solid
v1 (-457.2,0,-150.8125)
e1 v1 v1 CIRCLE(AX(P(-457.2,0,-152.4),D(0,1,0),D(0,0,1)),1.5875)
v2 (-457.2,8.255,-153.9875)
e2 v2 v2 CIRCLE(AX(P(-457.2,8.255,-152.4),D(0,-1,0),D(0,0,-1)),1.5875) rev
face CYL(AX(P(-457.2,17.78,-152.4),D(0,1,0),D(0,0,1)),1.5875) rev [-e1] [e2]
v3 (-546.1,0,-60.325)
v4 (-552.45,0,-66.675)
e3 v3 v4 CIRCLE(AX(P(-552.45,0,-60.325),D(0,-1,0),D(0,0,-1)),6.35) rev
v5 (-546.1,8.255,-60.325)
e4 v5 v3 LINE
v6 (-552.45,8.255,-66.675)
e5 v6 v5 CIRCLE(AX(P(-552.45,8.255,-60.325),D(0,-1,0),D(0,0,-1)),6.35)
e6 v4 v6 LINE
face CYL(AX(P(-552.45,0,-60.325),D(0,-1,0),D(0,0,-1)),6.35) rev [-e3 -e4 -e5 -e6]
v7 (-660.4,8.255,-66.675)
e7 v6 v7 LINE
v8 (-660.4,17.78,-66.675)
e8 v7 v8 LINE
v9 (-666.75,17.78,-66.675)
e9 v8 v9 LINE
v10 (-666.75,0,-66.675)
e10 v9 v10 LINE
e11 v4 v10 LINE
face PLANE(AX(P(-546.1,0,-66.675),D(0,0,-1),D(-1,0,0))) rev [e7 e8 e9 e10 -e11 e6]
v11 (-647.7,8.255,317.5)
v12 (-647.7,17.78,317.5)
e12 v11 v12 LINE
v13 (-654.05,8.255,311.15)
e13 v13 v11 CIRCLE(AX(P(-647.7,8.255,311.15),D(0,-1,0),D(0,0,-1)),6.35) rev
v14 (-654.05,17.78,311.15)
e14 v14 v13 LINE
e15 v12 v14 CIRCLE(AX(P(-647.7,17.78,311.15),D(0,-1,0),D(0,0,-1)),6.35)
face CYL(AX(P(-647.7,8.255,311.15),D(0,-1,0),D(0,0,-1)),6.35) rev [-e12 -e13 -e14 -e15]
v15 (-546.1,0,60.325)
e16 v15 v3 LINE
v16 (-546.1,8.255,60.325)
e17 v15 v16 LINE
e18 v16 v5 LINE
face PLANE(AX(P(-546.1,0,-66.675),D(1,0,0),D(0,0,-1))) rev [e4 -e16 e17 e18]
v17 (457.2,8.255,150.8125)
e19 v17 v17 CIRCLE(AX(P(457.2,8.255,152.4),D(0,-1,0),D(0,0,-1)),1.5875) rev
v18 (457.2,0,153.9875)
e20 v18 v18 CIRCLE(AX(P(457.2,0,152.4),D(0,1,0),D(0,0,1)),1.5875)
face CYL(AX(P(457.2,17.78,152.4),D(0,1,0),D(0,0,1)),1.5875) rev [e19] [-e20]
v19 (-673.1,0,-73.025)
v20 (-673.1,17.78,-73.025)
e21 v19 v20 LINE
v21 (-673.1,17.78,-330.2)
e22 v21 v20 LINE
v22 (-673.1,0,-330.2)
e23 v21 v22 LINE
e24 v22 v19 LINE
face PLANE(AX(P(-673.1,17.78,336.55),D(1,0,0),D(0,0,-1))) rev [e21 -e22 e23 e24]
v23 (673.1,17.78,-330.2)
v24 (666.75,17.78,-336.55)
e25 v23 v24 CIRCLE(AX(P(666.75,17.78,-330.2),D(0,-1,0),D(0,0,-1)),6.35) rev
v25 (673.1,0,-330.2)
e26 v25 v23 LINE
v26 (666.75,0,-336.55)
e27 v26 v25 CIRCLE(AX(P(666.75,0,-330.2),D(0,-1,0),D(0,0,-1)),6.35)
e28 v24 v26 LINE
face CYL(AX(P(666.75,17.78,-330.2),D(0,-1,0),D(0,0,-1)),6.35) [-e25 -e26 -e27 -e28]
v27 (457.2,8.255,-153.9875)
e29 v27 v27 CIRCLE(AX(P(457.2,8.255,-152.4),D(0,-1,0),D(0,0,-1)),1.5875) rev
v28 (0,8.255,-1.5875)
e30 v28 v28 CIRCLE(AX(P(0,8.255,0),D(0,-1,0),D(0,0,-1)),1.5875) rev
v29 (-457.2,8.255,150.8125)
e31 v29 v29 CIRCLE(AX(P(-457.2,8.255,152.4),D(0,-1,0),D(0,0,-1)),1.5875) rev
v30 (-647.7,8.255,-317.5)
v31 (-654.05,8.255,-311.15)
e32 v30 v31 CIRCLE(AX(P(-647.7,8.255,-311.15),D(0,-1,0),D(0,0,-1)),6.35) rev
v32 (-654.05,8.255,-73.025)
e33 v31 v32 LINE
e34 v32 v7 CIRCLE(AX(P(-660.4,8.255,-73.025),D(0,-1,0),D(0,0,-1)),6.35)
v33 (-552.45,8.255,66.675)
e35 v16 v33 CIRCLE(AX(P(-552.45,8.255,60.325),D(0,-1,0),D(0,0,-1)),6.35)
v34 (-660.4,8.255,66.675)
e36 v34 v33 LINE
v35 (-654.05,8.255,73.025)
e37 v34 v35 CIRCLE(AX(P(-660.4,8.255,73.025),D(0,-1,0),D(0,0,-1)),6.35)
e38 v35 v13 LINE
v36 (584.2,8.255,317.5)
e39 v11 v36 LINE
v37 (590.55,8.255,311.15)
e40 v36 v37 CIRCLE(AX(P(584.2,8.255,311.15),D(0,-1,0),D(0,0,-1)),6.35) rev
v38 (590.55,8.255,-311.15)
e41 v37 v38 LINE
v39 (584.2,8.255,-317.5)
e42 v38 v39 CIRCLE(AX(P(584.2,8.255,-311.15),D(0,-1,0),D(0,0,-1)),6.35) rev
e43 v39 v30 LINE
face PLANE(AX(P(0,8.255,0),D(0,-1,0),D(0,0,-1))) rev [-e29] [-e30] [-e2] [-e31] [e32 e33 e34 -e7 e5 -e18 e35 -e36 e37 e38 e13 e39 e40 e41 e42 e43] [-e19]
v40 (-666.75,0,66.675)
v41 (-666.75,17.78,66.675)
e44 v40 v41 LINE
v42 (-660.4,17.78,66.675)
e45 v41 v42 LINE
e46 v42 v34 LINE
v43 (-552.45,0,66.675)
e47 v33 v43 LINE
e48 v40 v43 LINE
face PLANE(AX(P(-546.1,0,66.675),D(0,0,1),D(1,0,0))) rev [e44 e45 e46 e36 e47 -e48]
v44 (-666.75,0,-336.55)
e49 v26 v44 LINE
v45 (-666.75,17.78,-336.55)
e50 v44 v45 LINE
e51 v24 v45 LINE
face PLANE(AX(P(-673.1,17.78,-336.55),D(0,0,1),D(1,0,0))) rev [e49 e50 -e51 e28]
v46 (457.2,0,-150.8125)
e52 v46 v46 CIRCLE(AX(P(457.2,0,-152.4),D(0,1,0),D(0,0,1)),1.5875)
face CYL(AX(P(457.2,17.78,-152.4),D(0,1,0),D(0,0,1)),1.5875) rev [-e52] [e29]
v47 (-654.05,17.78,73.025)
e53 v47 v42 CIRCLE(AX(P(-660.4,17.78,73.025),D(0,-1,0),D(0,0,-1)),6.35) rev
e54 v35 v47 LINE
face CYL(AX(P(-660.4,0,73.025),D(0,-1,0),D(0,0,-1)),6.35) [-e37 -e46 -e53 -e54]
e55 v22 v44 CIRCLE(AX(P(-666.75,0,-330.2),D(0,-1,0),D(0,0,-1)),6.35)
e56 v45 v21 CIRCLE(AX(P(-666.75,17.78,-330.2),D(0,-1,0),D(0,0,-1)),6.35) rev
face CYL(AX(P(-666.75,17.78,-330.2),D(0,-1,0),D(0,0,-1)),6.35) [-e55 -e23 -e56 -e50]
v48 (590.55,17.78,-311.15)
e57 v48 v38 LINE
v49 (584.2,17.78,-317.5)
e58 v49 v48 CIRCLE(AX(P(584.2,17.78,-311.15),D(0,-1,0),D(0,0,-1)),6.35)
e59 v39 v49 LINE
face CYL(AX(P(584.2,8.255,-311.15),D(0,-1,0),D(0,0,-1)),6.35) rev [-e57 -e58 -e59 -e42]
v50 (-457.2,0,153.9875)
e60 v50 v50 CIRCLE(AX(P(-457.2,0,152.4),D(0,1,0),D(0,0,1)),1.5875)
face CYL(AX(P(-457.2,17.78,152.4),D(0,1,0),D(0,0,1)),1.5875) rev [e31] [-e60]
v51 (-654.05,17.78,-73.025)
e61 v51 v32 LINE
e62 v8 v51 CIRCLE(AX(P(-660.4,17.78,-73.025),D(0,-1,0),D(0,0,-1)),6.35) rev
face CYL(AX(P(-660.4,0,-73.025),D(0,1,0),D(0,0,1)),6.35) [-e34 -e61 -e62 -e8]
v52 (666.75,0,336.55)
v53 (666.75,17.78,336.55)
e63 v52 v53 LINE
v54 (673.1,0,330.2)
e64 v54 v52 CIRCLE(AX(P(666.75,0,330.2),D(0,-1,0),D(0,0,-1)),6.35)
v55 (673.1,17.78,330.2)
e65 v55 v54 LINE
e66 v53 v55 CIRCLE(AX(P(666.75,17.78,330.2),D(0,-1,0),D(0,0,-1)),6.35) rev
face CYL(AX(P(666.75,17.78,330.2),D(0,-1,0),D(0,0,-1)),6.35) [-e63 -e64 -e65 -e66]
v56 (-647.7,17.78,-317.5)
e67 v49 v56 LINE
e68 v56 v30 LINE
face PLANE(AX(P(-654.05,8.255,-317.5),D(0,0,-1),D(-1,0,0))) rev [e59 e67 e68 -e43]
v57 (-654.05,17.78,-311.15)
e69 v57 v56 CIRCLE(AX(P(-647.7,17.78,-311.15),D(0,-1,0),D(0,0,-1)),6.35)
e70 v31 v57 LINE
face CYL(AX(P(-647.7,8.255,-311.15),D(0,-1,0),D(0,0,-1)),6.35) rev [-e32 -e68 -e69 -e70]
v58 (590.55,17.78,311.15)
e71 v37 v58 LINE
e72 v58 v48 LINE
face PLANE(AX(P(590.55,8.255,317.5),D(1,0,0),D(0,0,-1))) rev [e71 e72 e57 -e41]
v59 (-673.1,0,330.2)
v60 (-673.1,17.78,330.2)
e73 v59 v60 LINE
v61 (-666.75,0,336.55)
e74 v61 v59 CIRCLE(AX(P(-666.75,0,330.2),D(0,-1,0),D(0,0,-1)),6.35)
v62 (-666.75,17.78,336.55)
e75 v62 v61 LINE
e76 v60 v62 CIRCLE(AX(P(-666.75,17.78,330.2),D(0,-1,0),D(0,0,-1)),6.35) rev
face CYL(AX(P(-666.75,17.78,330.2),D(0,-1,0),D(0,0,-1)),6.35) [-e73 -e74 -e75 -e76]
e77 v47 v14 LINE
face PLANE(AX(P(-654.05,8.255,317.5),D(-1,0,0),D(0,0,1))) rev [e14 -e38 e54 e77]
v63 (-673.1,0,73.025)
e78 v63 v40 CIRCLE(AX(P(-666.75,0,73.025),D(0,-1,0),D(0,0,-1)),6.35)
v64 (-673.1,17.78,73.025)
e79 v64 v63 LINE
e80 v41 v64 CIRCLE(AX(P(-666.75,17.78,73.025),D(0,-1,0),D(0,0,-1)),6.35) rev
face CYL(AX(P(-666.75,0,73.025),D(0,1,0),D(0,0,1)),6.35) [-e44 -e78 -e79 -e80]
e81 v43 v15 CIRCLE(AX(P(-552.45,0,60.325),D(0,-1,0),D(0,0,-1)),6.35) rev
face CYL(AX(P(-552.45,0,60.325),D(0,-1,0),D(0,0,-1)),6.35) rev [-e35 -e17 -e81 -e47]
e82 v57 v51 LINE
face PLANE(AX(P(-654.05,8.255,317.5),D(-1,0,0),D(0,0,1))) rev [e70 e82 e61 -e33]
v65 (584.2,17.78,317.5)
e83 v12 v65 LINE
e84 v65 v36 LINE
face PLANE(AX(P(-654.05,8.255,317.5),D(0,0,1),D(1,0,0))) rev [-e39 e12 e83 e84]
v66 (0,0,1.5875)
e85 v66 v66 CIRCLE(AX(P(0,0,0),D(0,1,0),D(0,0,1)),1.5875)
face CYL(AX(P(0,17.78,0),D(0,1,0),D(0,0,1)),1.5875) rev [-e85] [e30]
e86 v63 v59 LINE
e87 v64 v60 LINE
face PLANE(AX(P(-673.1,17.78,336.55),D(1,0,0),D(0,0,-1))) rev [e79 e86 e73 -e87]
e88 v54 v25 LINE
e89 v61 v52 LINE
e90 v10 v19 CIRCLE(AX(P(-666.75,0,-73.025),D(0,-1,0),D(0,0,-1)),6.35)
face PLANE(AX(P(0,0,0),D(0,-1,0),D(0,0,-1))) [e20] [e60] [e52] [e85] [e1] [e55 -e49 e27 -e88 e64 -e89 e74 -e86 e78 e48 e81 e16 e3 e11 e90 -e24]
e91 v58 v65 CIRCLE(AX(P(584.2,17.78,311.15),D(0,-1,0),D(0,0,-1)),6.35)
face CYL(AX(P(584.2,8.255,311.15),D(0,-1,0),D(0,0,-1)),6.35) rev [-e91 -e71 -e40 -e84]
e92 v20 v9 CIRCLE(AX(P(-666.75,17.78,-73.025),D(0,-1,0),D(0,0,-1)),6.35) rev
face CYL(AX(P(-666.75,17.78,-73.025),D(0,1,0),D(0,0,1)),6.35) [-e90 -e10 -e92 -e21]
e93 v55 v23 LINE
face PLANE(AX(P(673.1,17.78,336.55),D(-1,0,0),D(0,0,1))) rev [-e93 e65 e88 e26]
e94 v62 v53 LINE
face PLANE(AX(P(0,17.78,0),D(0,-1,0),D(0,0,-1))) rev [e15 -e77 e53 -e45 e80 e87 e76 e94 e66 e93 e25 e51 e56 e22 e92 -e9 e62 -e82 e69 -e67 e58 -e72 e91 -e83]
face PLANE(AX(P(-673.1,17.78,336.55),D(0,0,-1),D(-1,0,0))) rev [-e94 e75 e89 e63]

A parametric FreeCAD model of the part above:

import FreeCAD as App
import Part
import Sketcher
from FreeCAD import Vector
Q = App.Units.Quantity


def edges_at(feature, points):
    """Names of the edges that pass closest to the given points."""
    edges = feature.Shape.Edges
    near = lambda p: min(range(len(edges)), key=lambda i: edges[i].distToShape(Part.Vertex(*p))[0])
    return sorted({f"Edge{near(p) + 1}" for p in points})

doc = App.newDocument("Part")
body = doc.addObject("PartDesign::Body", "Body")

# Sketch on XZ plane
sketch1 = body.newObject("Sketcher::SketchObject", "Sketch")
sketch1.AttachmentSupport = (doc.getObject("XZ_Plane"), [""])
sketch1.MapMode = "FlatFace"
sketch1.addGeometry([
    Part.LineSegment(Vector(-673, -337, 0), Vector(-673, 337, 0)),
    Part.LineSegment(Vector(-673, 337, 0), Vector(673, 337, 0)),
    Part.LineSegment(Vector(673, 337, 0), Vector(673, -337, 0)),
    Part.LineSegment(Vector(673, -337, 0), Vector(-673, -337, 0)),
], False)
sketch1.addConstraint([
    Sketcher.Constraint("Coincident", 0, 2, 1, 1),
    Sketcher.Constraint("Coincident", 1, 2, 2, 1),
    Sketcher.Constraint("Coincident", 2, 2, 3, 1),
    Sketcher.Constraint("Coincident", 3, 2, 0, 1),
    Sketcher.Constraint("Vertical", 0),
    Sketcher.Constraint("Horizontal", 1),
    Sketcher.Constraint("Vertical", 2),
    Sketcher.Constraint("Horizontal", 3),
    Sketcher.Constraint("Symmetric", 0, 2, 2, 2, -1, 1),
    Sketcher.Constraint("DistanceX", 1, 1, 1, 2, Q("53 in")),
    Sketcher.Constraint("DistanceY", 0, 1, 0, 2, Q("26.5 in")),
])
pad1 = body.newObject("PartDesign::Pad", "Pad")
pad1.Profile = sketch1
pad1.Length = Q("0.7 in")
pad1.Reversed = True

# Sketch on XZ plane
sketch2 = body.newObject("Sketcher::SketchObject", "Sketch001")
sketch2.AttachmentSupport = (doc.getObject("XZ_Plane"), [""])
sketch2.MapMode = "FlatFace"
sketch2.AttachmentOffset = App.Placement(Vector(0, 0, -0.7 * 25.4), App.Rotation())
sketch2.addGeometry([
    Part.Circle(Vector(0, 0, 0), Vector(0, 0, 1), 1.6),  # 0
    Part.Circle(Vector(457.2, -152.4, 0), Vector(0, 0, 1), 1.6),  # 1
    Part.Circle(Vector(-457.2, 152.4, 0), Vector(0, 0, 1), 1.6),  # 2
    Part.Circle(Vector(-457.2, -152.4, 0), Vector(0, 0, 1), 1.6),  # 3
    Part.Circle(Vector(457.2, 152.4, 0), Vector(0, 0, 1), 1.6),  # 4
], False)
sketch2.addConstraint([
    Sketcher.Constraint("Coincident", 0, 3, -1, 1),
    Sketcher.Constraint("Equal", 0, 1),
    Sketcher.Constraint("Equal", 1, 2),
    Sketcher.Constraint("Equal", 2, 3),
    Sketcher.Constraint("Equal", 3, 4),
    Sketcher.Constraint("Symmetric", 1, 3, 2, 3, -1, 1),
    Sketcher.Constraint("Symmetric", 3, 3, 4, 3, -1, 1),
    Sketcher.Constraint("Symmetric", 1, 3, 3, 3, -2),
    Sketcher.Constraint("Diameter", 0, Q("0.125 in")),
    Sketcher.Constraint("DistanceX", -1, 1, 1, 3, Q("18 in")),
    Sketcher.Constraint("DistanceY", 1, 3, -1, 1, Q("6 in")),
])
doc.recompute()
hole = body.newObject("PartDesign::Hole", "Hole")
hole.Profile = sketch2
hole.ThreadType = "None"
hole.Diameter = Q("0.125 in")
hole.DepthType = "ThroughAll"
hole.Reversed = True

# Sketch on XZ plane
sketch3 = body.newObject("Sketcher::SketchObject", "Sketch002")
sketch3.AttachmentSupport = (doc.getObject("XZ_Plane"), [""])
sketch3.MapMode = "FlatFace"
sketch3.AttachmentOffset = App.Placement(Vector(0, 0, -0.7 * 25.4), App.Rotation())
sketch3.addGeometry([
    Part.LineSegment(Vector(-673, -67, 0), Vector(-673, 67, 0)),
    Part.LineSegment(Vector(-673, 67, 0), Vector(-546, 67, 0)),
    Part.LineSegment(Vector(-546, 67, 0), Vector(-546, -67, 0)),
    Part.LineSegment(Vector(-546, -67, 0), Vector(-673, -67, 0)),
], False)
sketch3.addConstraint([
    Sketcher.Constraint("Coincident", 0, 2, 1, 1),
    Sketcher.Constraint("Coincident", 1, 2, 2, 1),
    Sketcher.Constraint("Coincident", 2, 2, 3, 1),
    Sketcher.Constraint("Coincident", 3, 2, 0, 1),
    Sketcher.Constraint("Vertical", 0),
    Sketcher.Constraint("Horizontal", 1),
    Sketcher.Constraint("Vertical", 2),
    Sketcher.Constraint("Horizontal", 3),
    Sketcher.Constraint("DistanceX", 1, 1, 1, 2, Q("5 in")),
    Sketcher.Constraint("DistanceY", 0, 1, 0, 2, Q("5.25 in")),
    Sketcher.Constraint("DistanceX", 0, 2, -1, 1, Q("26.5 in")),
    Sketcher.Constraint("DistanceY", -1, 1, 0, 2, Q("2.625 in")),
])
pocket1 = body.newObject("PartDesign::Pocket", "Pocket")
pocket1.Profile = sketch3
pocket1.Type = "ThroughAll"
pocket1.Reversed = True

# Sketch on XZ plane
sketch4 = body.newObject("Sketcher::SketchObject", "Sketch003")
sketch4.AttachmentSupport = (doc.getObject("XZ_Plane"), [""])
sketch4.MapMode = "FlatFace"
sketch4.AttachmentOffset = App.Placement(Vector(0, 0, -0.7 * 25.4), App.Rotation())
sketch4.addGeometry([
    Part.LineSegment(Vector(-654, -318, 0), Vector(-654, 318, 0)),
    Part.LineSegment(Vector(-654, 318, 0), Vector(591, 318, 0)),
    Part.LineSegment(Vector(591, 318, 0), Vector(591, -318, 0)),
    Part.LineSegment(Vector(591, -318, 0), Vector(-654, -318, 0)),
], False)
sketch4.addConstraint([
    Sketcher.Constraint("Coincident", 0, 2, 1, 1),
    Sketcher.Constraint("Coincident", 1, 2, 2, 1),
    Sketcher.Constraint("Coincident", 2, 2, 3, 1),
    Sketcher.Constraint("Coincident", 3, 2, 0, 1),
    Sketcher.Constraint("Vertical", 0),
    Sketcher.Constraint("Horizontal", 1),
    Sketcher.Constraint("Vertical", 2),
    Sketcher.Constraint("Horizontal", 3),
    Sketcher.Constraint("DistanceX", 1, 1, 1, 2, Q("49 in")),
    Sketcher.Constraint("DistanceY", 0, 1, 0, 2, Q("25 in")),
    Sketcher.Constraint("DistanceY", -1, 1, 0, 2, Q("12.5 in")),
    Sketcher.Constraint("DistanceX", 0, 2, -1, 1, Q("25.75 in")),
])
pocket2 = body.newObject("PartDesign::Pocket", "Pocket001")
pocket2.Profile = sketch4
pocket2.Length = Q("0.375 in")
pocket2.Reversed = True
doc.recompute()

fillet = body.newObject("PartDesign::Fillet", "Fillet")
fillet.Base = (pocket2, edges_at(pocket2, [
    (-673.1, 8.89, 66.675),
    (-673.1, 8.89, -66.675),
    (-546.1, 4.128, -66.675),
    (-546.1, 4.128, 66.675),
    (-654.05, 13.018, 66.675),
    (-654.05, 13.018, -66.675),
    (-654.05, 13.018, 317.5),
    (590.55, 13.018, -317.5),
    (673.1, 8.89, 336.55),
    (590.55, 13.018, 317.5),
    (-673.1, 8.89, 336.55),
    (-654.05, 13.018, -317.5),
    (-673.1, 8.89, -336.55),
    (673.1, 8.89, -336.55),
]))
fillet.Radius = Q("0.25 in")

doc.recompute()
